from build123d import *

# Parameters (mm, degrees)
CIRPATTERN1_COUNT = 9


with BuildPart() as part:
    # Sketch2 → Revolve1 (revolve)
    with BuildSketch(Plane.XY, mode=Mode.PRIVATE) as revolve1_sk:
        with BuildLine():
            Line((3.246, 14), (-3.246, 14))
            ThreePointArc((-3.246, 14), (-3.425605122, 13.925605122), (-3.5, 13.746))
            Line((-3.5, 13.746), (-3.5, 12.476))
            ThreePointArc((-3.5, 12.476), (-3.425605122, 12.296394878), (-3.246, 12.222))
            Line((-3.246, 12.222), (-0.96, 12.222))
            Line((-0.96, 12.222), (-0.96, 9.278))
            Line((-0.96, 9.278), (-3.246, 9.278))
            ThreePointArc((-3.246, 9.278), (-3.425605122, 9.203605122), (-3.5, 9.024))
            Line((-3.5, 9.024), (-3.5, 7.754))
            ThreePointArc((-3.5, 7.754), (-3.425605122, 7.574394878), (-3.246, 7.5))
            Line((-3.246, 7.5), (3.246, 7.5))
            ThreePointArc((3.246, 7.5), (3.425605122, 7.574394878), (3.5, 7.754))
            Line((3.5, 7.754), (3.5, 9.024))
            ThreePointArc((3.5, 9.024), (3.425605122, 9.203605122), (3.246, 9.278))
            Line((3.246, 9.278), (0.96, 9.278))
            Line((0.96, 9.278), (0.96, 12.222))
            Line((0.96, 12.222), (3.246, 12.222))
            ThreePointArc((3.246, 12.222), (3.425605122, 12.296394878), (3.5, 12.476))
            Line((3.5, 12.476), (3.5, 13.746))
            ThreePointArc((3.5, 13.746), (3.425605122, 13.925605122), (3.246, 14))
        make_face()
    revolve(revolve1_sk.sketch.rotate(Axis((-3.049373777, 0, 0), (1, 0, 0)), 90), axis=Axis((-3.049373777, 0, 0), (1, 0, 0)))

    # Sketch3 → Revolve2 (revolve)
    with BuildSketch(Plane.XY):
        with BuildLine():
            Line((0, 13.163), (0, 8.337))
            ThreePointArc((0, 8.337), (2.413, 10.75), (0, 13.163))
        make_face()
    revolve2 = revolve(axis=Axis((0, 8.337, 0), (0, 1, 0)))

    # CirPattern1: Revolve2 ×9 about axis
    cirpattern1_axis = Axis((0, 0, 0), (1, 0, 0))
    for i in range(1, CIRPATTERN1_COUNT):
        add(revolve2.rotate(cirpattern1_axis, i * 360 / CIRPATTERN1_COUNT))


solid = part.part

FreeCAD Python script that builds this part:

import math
import FreeCAD as App
import Part
import Sketcher
Q = App.Units.Quantity

doc = App.newDocument("Part")
body = doc.addObject("PartDesign::Body", "Body")

# Sketch on XY plane
sketch1 = body.newObject("Sketcher::SketchObject", "Sketch")
sketch1.AttachmentSupport = (doc.getObject("XY_Plane"), [""])
sketch1.MapMode = "FlatFace"
sketch1.addGeometry(Part.LineSegment(App.Vector(3.25, 14, 0), App.Vector(-3.25, 14, 0)), False)
sketch1.addGeometry(Part.ArcOfCircle(Part.Circle(App.Vector(-3.25, 13.75, 0), App.Vector(0, 0, 1), 0.25), math.radians(90), math.radians(180)), False)
sketch1.addGeometry(Part.LineSegment(App.Vector(-3.5, 13.75, 0), App.Vector(-3.5, 12.48, 0)), False)
sketch1.addGeometry(Part.ArcOfCircle(Part.Circle(App.Vector(-3.25, 12.48, 0), App.Vector(0, 0, 1), 0.25), math.radians(-180), math.radians(-90)), False)
sketch1.addGeometry(Part.LineSegment(App.Vector(-3.25, 12.22, 0), App.Vector(-0.96, 12.22, 0)), False)
sketch1.addGeometry(Part.LineSegment(App.Vector(-0.96, 12.22, 0), App.Vector(-0.96, 9.28, 0)), False)
sketch1.addGeometry(Part.LineSegment(App.Vector(-0.96, 9.28, 0), App.Vector(-3.25, 9.28, 0)), False)
sketch1.addGeometry(Part.ArcOfCircle(Part.Circle(App.Vector(-3.25, 9.02, 0), App.Vector(0, 0, 1), 0.25), math.radians(90), math.radians(180)), False)
sketch1.addGeometry(Part.LineSegment(App.Vector(-3.5, 9.02, 0), App.Vector(-3.5, 7.75, 0)), False)
sketch1.addGeometry(Part.ArcOfCircle(Part.Circle(App.Vector(-3.25, 7.75, 0), App.Vector(0, 0, 1), 0.25), math.radians(-180), math.radians(-90)), False)
sketch1.addGeometry(Part.LineSegment(App.Vector(-3.25, 7.5, 0), App.Vector(3.25, 7.5, 0)), False)
sketch1.addGeometry(Part.ArcOfCircle(Part.Circle(App.Vector(3.25, 7.75, 0), App.Vector(0, 0, 1), 0.25), math.radians(-90), math.radians(0)), False)
sketch1.addGeometry(Part.LineSegment(App.Vector(3.5, 7.75, 0), App.Vector(3.5, 9.02, 0)), False)
sketch1.addGeometry(Part.ArcOfCircle(Part.Circle(App.Vector(3.25, 9.02, 0), App.Vector(0, 0, 1), 0.25), math.radians(0), math.radians(90)), False)
sketch1.addGeometry(Part.LineSegment(App.Vector(3.25, 9.28, 0), App.Vector(0.96, 9.28, 0)), False)
sketch1.addGeometry(Part.LineSegment(App.Vector(0.96, 9.28, 0), App.Vector(0.96, 12.22, 0)), False)
sketch1.addGeometry(Part.LineSegment(App.Vector(0.96, 12.22, 0), App.Vector(3.25, 12.22, 0)), False)
sketch1.addGeometry(Part.ArcOfCircle(Part.Circle(App.Vector(3.25, 12.48, 0), App.Vector(0, 0, 1), 0.25), math.radians(-90), math.radians(0)), False)
sketch1.addGeometry(Part.LineSegment(App.Vector(3.5, 12.48, 0), App.Vector(3.5, 13.75, 0)), False)
sketch1.addGeometry(Part.ArcOfCircle(Part.Circle(App.Vector(3.25, 13.75, 0), App.Vector(0, 0, 1), 0.25), math.radians(0), math.radians(90)), False)
sketch1.addConstraint(Sketcher.Constraint("Tangent", 0, 2, 1, 1))
sketch1.addConstraint(Sketcher.Constraint("Tangent", 1, 2, 2, 1))
sketch1.addConstraint(Sketcher.Constraint("Tangent", 2, 2, 3, 1))
sketch1.addConstraint(Sketcher.Constraint("Tangent", 3, 2, 4, 1))
sketch1.addConstraint(Sketcher.Constraint("Coincident", 4, 2, 5, 1))
sketch1.addConstraint(Sketcher.Constraint("Coincident", 5, 2, 6, 1))
sketch1.addConstraint(Sketcher.Constraint("Tangent", 6, 2, 7, 1))
sketch1.addConstraint(Sketcher.Constraint("Tangent", 7, 2, 8, 1))
sketch1.addConstraint(Sketcher.Constraint("Tangent", 8, 2, 9, 1))
sketch1.addConstraint(Sketcher.Constraint("Tangent", 9, 2, 10, 1))
sketch1.addConstraint(Sketcher.Constraint("Tangent", 10, 2, 11, 1))
sketch1.addConstraint(Sketcher.Constraint("Tangent", 11, 2, 12, 1))
sketch1.addConstraint(Sketcher.Constraint("Tangent", 12, 2, 13, 1))
sketch1.addConstraint(Sketcher.Constraint("Tangent", 13, 2, 14, 1))
sketch1.addConstraint(Sketcher.Constraint("Coincident", 14, 2, 15, 1))
sketch1.addConstraint(Sketcher.Constraint("Coincident", 15, 2, 16, 1))
sketch1.addConstraint(Sketcher.Constraint("Tangent", 16, 2, 17, 1))
sketch1.addConstraint(Sketcher.Constraint("Tangent", 17, 2, 18, 1))
sketch1.addConstraint(Sketcher.Constraint("Tangent", 18, 2, 19, 1))
sketch1.addConstraint(Sketcher.Constraint("Tangent", 19, 2, 0, 1))
sketch1.addConstraint(Sketcher.Constraint("Horizontal", 0))
sketch1.addConstraint(Sketcher.Constraint("Vertical", 2))
sketch1.addConstraint(Sketcher.Constraint("Horizontal", 4))
sketch1.addConstraint(Sketcher.Constraint("Vertical", 5))
sketch1.addConstraint(Sketcher.Constraint("Horizontal", 6))
sketch1.addConstraint(Sketcher.Constraint("Vertical", 8))
sketch1.addConstraint(Sketcher.Constraint("Horizontal", 10))
sketch1.addConstraint(Sketcher.Constraint("Vertical", 12))
sketch1.addConstraint(Sketcher.Constraint("Horizontal", 14))
sketch1.addConstraint(Sketcher.Constraint("Vertical", 15))
sketch1.addConstraint(Sketcher.Constraint("Horizontal", 16))
sketch1.addConstraint(Sketcher.Constraint("Vertical", 18))
sketch1.addConstraint(Sketcher.Constraint("Equal", 1, 3))
sketch1.addConstraint(Sketcher.Constraint("Equal", 3, 7))
sketch1.addConstraint(Sketcher.Constraint("Equal", 7, 9))
sketch1.addConstraint(Sketcher.Constraint("Equal", 9, 11))
sketch1.addConstraint(Sketcher.Constraint("Equal", 11, 13))
sketch1.addConstraint(Sketcher.Constraint("Equal", 13, 17))
sketch1.addConstraint(Sketcher.Constraint("Equal", 17, 19))
sketch1.addConstraint(Sketcher.Constraint("Symmetric", 7, 3, 13, 3, -2))
sketch1.addConstraint(Sketcher.Constraint("Symmetric", 3, 3, 17, 3, -2))
sketch1.addConstraint(Sketcher.Constraint("Vertical", 3, 3, 7, 3))
sketch1.addConstraint(Sketcher.Constraint("Equal", 6, 14))
sketch1.addConstraint(Sketcher.Constraint("Equal", 2, 8))
sketch1.addConstraint(Sketcher.Constraint("Radius", 1, Q("0.01 in")))
sketch1.addConstraint(Sketcher.Constraint("DistanceX", 4, 1, 4, 2, Q("0.09 in")))
sketch1.addConstraint(Sketcher.Constraint("DistanceY", 2, 2, 2, 1, Q("0.05 in")))
sketch1.addConstraint(Sketcher.Constraint("DistanceX", 0, 2, 0, 1, Q("6.492 mm")))
sketch1.addConstraint(Sketcher.Constraint("DistanceY", 5, 2, 5, 1, Q("2.944 mm")))
sketch1.addConstraint(Sketcher.Constraint("DistanceY", -1, 1, 1, 3, Q("13.746 mm")))
revolution = body.newObject("PartDesign::Revolution", "Revolution")
revolution.Profile = sketch1
revolution.ReferenceAxis = (sketch1, ["H_Axis"])
revolution.Angle = 360

# Sketch on XY plane
sketch2 = body.newObject("Sketcher::SketchObject", "Sketch001")
sketch2.AttachmentSupport = (doc.getObject("XY_Plane"), [""])
sketch2.MapMode = "FlatFace"
sketch2.addGeometry(Part.LineSegment(App.Vector(0, 13.2, 0), App.Vector(0, 8.3, 0)), False)
sketch2.addGeometry(Part.ArcOfCircle(Part.Circle(App.Vector(0, 10.8, 0), App.Vector(0, 0, 1), 2.4), math.radians(-90), math.radians(90)), False)
sketch2.addConstraint(Sketcher.Constraint("Coincident", 0, 1, 1, 2))
sketch2.addConstraint(Sketcher.Constraint("Coincident", 1, 1, 0, 2))
sketch2.addConstraint(Sketcher.Constraint("Vertical", 0))
sketch2.addConstraint(Sketcher.Constraint("PointOnObject", 1, 3, -2))
sketch2.addConstraint(Sketcher.Constraint("PointOnObject", 0, 1, -2))
sketch2.addConstraint(Sketcher.Constraint("Radius", 1, Q("0.095 in")))
sketch2.addConstraint(Sketcher.Constraint("DistanceY", -1, 1, 1, 3, Q("10.75 mm")))
revolution2 = body.newObject("PartDesign::Revolution", "Revolution001")
revolution2.Profile = sketch2
revolution2.ReferenceAxis = (sketch2, ["V_Axis"])
revolution2.Angle = 360
doc.recompute()

polarpattern = body.newObject("PartDesign::PolarPattern", "PolarPattern")
polarpattern.Originals = [revolution2]
polarpattern.Axis = (doc.getObject("X_Axis"), [""])
polarpattern.Angle = 360
polarpattern.Occurrences = 9
body.Tip = polarpattern

doc.recompute()
